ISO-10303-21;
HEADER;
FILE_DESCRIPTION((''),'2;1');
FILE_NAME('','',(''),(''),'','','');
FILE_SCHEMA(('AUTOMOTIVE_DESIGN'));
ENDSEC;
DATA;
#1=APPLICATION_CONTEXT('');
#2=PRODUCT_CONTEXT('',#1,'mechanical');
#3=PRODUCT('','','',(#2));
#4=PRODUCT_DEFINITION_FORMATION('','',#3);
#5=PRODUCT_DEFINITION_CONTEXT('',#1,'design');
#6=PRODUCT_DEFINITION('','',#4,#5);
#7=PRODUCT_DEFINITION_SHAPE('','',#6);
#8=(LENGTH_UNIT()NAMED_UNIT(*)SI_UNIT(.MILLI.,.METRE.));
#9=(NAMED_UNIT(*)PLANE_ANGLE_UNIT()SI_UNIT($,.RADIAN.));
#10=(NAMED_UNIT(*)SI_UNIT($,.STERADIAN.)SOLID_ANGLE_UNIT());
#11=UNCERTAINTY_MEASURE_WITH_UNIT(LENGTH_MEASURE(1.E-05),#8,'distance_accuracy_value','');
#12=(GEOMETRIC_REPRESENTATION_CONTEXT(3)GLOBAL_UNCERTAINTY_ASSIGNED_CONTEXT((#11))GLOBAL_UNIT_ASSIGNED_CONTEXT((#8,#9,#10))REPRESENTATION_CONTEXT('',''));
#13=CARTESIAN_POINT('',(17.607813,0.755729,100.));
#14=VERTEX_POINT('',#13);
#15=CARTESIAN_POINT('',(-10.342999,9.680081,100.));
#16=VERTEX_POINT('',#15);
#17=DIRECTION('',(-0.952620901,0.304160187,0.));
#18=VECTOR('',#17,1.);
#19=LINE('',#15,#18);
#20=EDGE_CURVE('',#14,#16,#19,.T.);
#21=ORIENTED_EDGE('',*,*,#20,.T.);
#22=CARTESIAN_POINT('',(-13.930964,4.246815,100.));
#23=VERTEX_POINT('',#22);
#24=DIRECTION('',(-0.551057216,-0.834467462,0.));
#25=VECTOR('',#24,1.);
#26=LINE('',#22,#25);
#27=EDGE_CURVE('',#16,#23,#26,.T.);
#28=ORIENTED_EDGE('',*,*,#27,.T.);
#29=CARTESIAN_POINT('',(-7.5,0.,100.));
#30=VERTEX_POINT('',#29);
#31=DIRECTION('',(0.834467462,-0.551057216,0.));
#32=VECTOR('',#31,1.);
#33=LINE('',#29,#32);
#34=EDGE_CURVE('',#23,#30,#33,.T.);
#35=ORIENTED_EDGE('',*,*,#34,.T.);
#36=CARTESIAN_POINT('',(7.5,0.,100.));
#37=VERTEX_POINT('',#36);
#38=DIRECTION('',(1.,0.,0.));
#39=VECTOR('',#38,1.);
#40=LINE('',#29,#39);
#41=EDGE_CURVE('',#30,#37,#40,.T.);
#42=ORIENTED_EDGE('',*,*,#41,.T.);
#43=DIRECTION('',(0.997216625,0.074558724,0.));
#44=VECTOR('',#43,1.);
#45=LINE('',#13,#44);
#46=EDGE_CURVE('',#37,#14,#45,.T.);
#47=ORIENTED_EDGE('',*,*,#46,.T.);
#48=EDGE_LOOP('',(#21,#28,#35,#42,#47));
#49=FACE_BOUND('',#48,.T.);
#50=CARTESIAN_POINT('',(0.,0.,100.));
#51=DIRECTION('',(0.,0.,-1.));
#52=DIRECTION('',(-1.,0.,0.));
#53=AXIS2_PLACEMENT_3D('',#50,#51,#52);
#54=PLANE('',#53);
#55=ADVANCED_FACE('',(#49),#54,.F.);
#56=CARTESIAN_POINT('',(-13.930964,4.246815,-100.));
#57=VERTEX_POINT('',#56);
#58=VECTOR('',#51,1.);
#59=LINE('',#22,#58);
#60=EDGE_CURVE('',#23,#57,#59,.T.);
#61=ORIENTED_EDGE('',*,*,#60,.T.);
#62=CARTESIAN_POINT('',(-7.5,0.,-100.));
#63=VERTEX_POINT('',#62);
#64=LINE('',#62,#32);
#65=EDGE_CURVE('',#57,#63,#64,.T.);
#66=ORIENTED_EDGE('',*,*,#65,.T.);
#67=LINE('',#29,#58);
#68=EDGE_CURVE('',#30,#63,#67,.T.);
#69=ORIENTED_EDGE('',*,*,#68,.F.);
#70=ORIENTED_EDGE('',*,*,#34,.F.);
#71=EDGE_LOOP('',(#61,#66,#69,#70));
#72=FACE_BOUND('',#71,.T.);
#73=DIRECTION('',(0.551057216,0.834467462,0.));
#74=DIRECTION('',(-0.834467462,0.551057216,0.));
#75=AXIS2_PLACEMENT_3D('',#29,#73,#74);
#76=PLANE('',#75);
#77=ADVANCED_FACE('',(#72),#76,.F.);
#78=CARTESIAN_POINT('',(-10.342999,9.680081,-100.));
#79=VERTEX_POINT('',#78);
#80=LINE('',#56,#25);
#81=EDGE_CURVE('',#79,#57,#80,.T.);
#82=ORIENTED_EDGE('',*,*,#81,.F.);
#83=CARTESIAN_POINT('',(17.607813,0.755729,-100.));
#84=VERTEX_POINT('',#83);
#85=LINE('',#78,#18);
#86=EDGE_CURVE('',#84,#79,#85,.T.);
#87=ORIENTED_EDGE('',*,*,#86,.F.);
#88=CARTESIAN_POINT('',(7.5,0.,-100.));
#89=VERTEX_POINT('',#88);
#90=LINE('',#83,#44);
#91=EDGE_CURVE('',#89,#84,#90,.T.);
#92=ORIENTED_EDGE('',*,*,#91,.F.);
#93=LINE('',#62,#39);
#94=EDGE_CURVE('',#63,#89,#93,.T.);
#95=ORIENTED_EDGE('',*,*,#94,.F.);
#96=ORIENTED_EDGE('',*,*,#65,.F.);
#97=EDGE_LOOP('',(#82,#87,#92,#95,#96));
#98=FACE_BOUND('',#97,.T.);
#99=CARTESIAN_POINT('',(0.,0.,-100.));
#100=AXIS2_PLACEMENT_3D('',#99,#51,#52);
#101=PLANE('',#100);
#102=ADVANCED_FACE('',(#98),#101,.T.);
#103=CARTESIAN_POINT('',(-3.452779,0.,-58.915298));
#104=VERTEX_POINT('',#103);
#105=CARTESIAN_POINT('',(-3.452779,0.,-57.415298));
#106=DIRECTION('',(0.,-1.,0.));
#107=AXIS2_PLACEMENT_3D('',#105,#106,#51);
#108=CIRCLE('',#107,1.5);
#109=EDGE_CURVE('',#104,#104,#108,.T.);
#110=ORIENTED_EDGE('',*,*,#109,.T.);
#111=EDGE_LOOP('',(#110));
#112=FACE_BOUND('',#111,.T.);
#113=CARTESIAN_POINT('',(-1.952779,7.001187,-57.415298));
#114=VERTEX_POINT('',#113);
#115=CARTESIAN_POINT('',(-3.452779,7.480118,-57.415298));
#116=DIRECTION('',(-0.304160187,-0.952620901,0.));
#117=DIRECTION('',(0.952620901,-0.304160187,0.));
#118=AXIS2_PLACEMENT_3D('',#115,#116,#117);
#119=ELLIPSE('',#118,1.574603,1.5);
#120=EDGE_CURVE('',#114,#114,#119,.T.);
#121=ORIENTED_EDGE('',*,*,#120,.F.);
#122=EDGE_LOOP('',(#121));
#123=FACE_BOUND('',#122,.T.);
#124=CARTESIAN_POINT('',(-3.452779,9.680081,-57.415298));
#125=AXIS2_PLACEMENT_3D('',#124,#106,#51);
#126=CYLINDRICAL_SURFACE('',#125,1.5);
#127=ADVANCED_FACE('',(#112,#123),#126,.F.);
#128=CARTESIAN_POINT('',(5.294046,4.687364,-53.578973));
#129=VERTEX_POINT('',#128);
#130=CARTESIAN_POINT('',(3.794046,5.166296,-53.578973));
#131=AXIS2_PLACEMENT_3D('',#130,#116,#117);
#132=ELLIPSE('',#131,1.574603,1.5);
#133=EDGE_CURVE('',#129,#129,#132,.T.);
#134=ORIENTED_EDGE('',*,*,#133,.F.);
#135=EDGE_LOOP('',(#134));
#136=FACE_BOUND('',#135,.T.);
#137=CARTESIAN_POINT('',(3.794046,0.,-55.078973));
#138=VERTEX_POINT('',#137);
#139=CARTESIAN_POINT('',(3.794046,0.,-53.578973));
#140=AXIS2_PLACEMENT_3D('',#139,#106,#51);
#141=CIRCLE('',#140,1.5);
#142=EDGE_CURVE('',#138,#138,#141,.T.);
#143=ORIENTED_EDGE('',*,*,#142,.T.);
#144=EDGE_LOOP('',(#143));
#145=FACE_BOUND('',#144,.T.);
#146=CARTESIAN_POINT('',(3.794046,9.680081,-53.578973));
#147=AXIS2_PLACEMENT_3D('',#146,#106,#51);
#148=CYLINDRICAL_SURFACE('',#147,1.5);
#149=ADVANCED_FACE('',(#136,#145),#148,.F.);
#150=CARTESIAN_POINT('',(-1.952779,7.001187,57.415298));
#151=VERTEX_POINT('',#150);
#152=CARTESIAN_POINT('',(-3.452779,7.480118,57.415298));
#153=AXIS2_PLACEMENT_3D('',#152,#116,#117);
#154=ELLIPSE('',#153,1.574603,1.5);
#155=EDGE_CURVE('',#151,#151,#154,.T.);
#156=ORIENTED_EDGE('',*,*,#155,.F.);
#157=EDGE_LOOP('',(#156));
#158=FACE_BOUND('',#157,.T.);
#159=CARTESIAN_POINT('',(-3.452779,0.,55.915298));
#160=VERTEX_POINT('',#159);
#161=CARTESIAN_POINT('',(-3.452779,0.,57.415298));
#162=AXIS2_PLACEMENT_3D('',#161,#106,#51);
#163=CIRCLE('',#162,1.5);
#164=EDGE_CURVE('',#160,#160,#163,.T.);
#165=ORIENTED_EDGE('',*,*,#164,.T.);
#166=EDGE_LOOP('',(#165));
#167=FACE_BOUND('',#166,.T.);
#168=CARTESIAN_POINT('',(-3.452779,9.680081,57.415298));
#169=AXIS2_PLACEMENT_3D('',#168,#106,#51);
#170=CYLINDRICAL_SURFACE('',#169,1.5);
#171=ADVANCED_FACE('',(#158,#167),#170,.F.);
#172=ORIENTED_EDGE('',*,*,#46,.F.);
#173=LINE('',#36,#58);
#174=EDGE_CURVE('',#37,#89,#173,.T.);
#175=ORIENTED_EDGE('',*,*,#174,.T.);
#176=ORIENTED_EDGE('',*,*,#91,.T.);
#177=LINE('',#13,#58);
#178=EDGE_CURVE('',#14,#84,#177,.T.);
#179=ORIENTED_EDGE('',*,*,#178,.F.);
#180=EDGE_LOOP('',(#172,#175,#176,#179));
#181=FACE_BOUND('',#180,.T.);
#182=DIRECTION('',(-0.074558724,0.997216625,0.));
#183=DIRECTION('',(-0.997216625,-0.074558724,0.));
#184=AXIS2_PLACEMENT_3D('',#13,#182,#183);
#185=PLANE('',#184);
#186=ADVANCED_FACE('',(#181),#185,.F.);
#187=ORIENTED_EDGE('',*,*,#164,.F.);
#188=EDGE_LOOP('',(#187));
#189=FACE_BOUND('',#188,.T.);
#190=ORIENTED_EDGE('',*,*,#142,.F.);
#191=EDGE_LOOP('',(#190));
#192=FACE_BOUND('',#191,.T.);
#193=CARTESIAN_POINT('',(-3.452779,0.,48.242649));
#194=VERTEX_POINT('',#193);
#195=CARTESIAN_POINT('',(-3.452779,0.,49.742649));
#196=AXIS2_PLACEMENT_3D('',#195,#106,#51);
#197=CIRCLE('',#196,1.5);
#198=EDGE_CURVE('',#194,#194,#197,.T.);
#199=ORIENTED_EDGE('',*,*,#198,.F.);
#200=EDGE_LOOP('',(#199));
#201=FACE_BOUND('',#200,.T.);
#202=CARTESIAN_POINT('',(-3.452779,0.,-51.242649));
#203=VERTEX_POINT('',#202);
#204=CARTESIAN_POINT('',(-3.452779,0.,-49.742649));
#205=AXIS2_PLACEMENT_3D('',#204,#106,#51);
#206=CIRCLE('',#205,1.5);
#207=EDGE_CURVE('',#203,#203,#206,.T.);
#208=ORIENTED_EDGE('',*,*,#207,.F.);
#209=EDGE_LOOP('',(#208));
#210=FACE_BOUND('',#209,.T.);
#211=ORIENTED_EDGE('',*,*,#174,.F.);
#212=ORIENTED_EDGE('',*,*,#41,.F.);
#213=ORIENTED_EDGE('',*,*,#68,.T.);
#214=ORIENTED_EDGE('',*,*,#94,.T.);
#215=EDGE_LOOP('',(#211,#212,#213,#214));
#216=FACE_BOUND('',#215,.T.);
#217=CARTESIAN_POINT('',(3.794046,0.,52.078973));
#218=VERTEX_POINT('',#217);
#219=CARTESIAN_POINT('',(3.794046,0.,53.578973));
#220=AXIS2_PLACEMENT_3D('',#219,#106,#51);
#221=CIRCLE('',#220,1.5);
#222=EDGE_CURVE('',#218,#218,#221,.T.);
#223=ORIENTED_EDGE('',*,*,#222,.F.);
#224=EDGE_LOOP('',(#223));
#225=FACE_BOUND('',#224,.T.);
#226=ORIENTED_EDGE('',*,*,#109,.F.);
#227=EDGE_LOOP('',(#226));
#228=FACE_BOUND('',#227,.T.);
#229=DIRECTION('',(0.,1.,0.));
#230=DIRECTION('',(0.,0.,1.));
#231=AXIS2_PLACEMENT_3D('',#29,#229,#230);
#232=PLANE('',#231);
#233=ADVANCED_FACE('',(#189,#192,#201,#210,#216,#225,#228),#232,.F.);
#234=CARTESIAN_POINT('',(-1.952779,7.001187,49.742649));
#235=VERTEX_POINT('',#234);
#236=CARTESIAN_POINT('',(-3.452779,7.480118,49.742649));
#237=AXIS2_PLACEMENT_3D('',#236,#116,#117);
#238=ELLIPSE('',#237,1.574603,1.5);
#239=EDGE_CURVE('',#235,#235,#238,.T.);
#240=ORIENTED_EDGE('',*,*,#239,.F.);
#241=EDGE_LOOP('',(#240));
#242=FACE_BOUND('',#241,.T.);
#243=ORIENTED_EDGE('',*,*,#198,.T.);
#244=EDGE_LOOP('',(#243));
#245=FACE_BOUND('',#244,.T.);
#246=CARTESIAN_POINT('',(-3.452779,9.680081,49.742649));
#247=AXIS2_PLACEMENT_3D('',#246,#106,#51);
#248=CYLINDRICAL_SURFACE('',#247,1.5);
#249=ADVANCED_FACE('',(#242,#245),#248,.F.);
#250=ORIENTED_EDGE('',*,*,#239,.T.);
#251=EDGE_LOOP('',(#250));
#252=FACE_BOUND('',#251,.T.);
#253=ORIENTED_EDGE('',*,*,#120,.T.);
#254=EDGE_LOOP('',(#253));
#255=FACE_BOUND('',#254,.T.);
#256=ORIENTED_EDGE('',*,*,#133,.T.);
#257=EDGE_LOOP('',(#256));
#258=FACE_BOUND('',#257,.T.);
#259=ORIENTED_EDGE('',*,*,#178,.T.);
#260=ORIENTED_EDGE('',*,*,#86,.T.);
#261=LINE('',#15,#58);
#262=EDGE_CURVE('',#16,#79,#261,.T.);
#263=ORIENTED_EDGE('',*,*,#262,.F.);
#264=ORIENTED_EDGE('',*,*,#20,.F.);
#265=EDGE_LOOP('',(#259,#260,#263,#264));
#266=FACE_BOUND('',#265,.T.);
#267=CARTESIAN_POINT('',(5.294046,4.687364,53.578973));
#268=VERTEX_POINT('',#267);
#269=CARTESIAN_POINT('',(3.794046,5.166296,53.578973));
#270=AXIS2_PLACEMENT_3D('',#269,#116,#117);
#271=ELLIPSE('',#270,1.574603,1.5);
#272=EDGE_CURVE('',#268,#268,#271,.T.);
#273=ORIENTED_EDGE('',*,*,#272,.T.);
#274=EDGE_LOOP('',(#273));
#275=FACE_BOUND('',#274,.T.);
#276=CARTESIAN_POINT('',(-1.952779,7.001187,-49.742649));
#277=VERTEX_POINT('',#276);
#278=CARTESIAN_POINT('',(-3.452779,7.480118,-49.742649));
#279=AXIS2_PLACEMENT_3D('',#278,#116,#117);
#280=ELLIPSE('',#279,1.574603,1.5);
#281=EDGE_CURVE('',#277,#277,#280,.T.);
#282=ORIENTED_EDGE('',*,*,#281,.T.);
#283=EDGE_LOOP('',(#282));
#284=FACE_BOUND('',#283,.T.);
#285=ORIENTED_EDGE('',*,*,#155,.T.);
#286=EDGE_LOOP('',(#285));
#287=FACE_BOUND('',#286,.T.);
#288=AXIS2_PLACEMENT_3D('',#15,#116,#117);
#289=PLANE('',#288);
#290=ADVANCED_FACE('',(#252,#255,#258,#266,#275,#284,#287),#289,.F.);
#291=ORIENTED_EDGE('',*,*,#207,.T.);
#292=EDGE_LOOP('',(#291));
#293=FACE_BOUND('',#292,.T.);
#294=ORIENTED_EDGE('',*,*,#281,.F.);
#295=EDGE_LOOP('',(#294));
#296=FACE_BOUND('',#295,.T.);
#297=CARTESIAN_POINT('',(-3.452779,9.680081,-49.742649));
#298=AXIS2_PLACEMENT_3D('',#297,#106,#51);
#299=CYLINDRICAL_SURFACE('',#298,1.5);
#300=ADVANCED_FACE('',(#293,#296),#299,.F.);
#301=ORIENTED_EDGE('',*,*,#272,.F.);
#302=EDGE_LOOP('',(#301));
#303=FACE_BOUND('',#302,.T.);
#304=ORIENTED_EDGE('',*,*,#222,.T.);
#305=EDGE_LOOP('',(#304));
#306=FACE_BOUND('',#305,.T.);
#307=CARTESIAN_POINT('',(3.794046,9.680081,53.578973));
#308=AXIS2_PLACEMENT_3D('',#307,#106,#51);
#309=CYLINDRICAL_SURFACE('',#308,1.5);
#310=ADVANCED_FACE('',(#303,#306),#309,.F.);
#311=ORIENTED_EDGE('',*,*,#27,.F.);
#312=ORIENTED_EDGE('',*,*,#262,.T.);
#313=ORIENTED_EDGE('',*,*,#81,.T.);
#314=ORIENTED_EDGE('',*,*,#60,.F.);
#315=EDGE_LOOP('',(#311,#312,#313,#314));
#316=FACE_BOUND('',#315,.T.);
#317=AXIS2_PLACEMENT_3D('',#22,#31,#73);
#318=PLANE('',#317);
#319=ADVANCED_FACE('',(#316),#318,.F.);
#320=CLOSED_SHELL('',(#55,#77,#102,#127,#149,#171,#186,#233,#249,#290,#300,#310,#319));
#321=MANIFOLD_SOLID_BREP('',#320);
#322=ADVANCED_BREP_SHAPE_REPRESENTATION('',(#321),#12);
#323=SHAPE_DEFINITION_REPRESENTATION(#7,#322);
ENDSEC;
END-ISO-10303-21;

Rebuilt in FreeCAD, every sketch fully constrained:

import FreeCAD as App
import Part
import Sketcher
Q = App.Units.Quantity

doc = App.newDocument("Part")
params = doc.addObject("Spreadsheet::Sheet", "Params")
for row, (alias, value) in enumerate([
    ("sketch1_width", "15 mm"),
    ("pad1_length", "200 mm"),
    ("sketch2_diameter", "3 mm"),
], start=1):
    params.set(f"A{row}", alias)
    params.set(f"B{row}", "=" + value)
    params.setAlias(f"B{row}", alias)

body = doc.addObject("PartDesign::Body", "Body")

sketch1 = doc.addObject("Sketcher::SketchObject", "Sketch")
body.addObject(sketch1)
sketch1.AttachmentSupport = (doc.XY_Plane, [""])
sketch1.MapMode = "FlatFace"
sketch1.addGeometry([
    Part.LineSegment(App.Vector(-7.5, 0, 0), App.Vector(7.5, 0, 0)),
    Part.LineSegment(App.Vector(7.5, 0, 0), App.Vector(17.607813, 0.755729, 0)),
    Part.LineSegment(App.Vector(17.607813, 0.755729, 0), App.Vector(-10.342999, 9.680081, 0)),
    Part.LineSegment(App.Vector(-10.342999, 9.680081, 0), App.Vector(-13.930964, 4.246815, 0)),
    Part.LineSegment(App.Vector(-13.930964, 4.246815, 0), App.Vector(-7.5, 0, 0)),
], False)
sketch1.addConstraint([
    Sketcher.Constraint("Coincident", 0, 2, 1, 1),
    Sketcher.Constraint("Coincident", 1, 2, 2, 1),
    Sketcher.Constraint("Coincident", 2, 2, 3, 1),
    Sketcher.Constraint("Coincident", 3, 2, 4, 1),
    Sketcher.Constraint("Coincident", 4, 2, 0, 1),
    Sketcher.Constraint("Horizontal", 0),
    Sketcher.Constraint("Symmetric", 0, 2, 4, 2, -1, 1),
    Sketcher.Constraint("Perpendicular", 3, 4),
    Sketcher.Constraint("DistanceX", 0, 1, 0, 2, Q("15 mm")),
    Sketcher.Constraint("DistanceX", 2, 2, -1, 1, Q("10.342999 mm")),
    Sketcher.Constraint("Distance", 2, Q("29.34096 mm")),
    Sketcher.Constraint("Distance", 4, Q("7.706669 mm")),
    Sketcher.Constraint("DistanceY", -1, 1, 1, 2, Q("0.755729 mm")),
    Sketcher.Constraint("DistanceY", -1, 1, 2, 2, Q("9.680081 mm")),
])
sketch1.setExpression("Constraints[8]", "Params.sketch1_width")
pad1 = doc.addObject("PartDesign::Pad", "Pad")
body.addObject(pad1)
pad1.Profile = sketch1
pad1.setExpression("Length", "Params.pad1_length")
pad1.Midplane = True

sketch2 = doc.addObject("Sketcher::SketchObject", "Sketch001")
body.addObject(sketch2)
sketch2.AttachmentSupport = (doc.XZ_Plane, [""])
sketch2.MapMode = "FlatFace"
sketch2.addGeometry([
    Part.Circle(App.Vector(3.794046, 53.578973, 0), App.Vector(0, 0, 1), 1.5),
    Part.Circle(App.Vector(3.794046, -53.578973, 0), App.Vector(0, 0, 1), 1.5),
    Part.Circle(App.Vector(-3.452779, 57.415298, 0), App.Vector(0, 0, 1), 1.5),
    Part.Circle(App.Vector(-3.452779, 49.742649, 0), App.Vector(0, 0, 1), 1.5),
    Part.Circle(App.Vector(-3.452779, -49.742649, 0), App.Vector(0, 0, 1), 1.5),
    Part.Circle(App.Vector(-3.452779, -57.415298, 0), App.Vector(0, 0, 1), 1.5),
], False)
sketch2.addConstraint([
    Sketcher.Constraint("Equal", 0, 1),
    Sketcher.Constraint("Equal", 1, 2),
    Sketcher.Constraint("Equal", 2, 3),
    Sketcher.Constraint("Equal", 3, 4),
    Sketcher.Constraint("Equal", 4, 5),
    Sketcher.Constraint("Symmetric", 0, 3, 1, 3, -1),
    Sketcher.Constraint("Symmetric", 3, 3, 4, 3, -1),
    Sketcher.Constraint("Symmetric", 2, 3, 5, 3, -1),
    Sketcher.Constraint("Vertical", 2, 3, 3, 3),
    Sketcher.Constraint("Diameter", 0, Q("3 mm")),
    Sketcher.Constraint("DistanceY", -1, 1, 2, 3, Q("57.415298 mm")),
    Sketcher.Constraint("DistanceX", 2, 3, -1, 1, Q("3.452779 mm")),
    Sketcher.Constraint("DistanceY", -1, 1, 3, 3, Q("49.742649 mm")),
    Sketcher.Constraint("DistanceY", 1, 3, 2, 3, Q("110.994271 mm")),
    Sketcher.Constraint("DistanceX", -1, 1, 0, 3, Q("3.794046 mm")),
])
sketch2.setExpression("Constraints[9]", "Params.sketch2_diameter")
pocket1 = doc.addObject("PartDesign::Pocket", "Pocket")
body.addObject(pocket1)
pocket1.Profile = sketch2
pocket1.Type = "ThroughAll"

doc.recompute()
